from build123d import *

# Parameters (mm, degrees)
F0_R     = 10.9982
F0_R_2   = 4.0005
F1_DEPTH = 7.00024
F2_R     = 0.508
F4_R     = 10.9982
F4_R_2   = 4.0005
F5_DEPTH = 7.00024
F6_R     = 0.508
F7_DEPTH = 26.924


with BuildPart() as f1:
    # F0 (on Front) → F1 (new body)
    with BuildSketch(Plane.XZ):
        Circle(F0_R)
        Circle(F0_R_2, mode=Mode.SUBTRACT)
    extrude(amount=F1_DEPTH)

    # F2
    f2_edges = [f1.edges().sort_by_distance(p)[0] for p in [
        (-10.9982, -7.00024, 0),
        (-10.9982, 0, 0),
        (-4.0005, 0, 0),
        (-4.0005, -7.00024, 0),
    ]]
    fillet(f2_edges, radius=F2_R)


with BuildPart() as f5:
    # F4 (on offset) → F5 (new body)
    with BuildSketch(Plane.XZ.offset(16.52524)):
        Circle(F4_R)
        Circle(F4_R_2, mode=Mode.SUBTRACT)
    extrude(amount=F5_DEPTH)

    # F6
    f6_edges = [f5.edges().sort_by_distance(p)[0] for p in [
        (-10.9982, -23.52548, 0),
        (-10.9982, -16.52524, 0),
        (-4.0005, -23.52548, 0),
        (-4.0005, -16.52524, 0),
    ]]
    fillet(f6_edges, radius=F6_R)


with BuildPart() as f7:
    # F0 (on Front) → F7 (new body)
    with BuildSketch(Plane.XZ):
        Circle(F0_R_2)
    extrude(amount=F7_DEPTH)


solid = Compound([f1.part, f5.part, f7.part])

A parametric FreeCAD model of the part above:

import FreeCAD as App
import Part
import Sketcher
Q = App.Units.Quantity


def edges_at(feature, points):
    """Names of the edges that pass closest to the given points."""
    edges = feature.Shape.Edges
    near = lambda p: min(range(len(edges)), key=lambda i: edges[i].distToShape(Part.Vertex(*p))[0])
    return sorted({f"Edge{near(p) + 1}" for p in points})

doc = App.newDocument("Part")
params = doc.addObject("Spreadsheet::Sheet", "Params")
for row, (alias, value) in enumerate([
    ("sketch1_diameter", "0.866 in"),
    ("sketch1_diameter2", "0.315 in"),
    ("pad1_length", "0.2756 in"),
    ("fillet_radius", "0.02 in"),
    ("sketch2_diameter", "0.866 in"),
    ("sketch2_diameter2", "0.315 in"),
    ("pad2_length", "0.2756 in"),
    ("fillet2_radius", "0.02 in"),
    ("sketch3_diameter", "0.315 in"),
    ("pad3_length", "1.06 in"),
], start=1):
    params.set(f"A{row}", alias)
    params.set(f"B{row}", "=" + value)
    params.setAlias(f"B{row}", alias)

body = doc.addObject("PartDesign::Body", "Body")

sketch1 = body.newObject("Sketcher::SketchObject", "Sketch")
sketch1.AttachmentSupport = (doc.getObject("XZ_Plane"), [""])
sketch1.MapMode = "FlatFace"
sketch1.addGeometry(Part.Circle(App.Vector(0, 0, 0), App.Vector(0, 0, 1), 11), False)
sketch1.addGeometry(Part.Circle(App.Vector(0, 0, 0), App.Vector(0, 0, 1), 4), False)
sketch1.addConstraint(Sketcher.Constraint("Coincident", 0, 3, -1, 1))
sketch1.addConstraint(Sketcher.Constraint("Coincident", 1, 3, -1, 1))
sketch1.addConstraint(Sketcher.Constraint("Diameter", 0, Q("0.866 in")))
sketch1.addConstraint(Sketcher.Constraint("Diameter", 1, Q("0.315 in")))
sketch1.setExpression("Constraints[2]", "Params.sketch1_diameter")
sketch1.setExpression("Constraints[3]", "Params.sketch1_diameter2")
pad1 = body.newObject("PartDesign::Pad", "Pad")
pad1.Profile = sketch1
pad1.setExpression("Length", "Params.pad1_length")
doc.recompute()

fillet = body.newObject("PartDesign::Fillet", "Fillet")
fillet.Base = (pad1, edges_at(pad1, [
    (-10.998, -7, 0),
    (-10.998, 0, 0),
    (-4, 0, 0),
    (-4, -7, 0),
]))
fillet.setExpression("Radius", "Params.fillet_radius")
body2 = doc.addObject("PartDesign::Body", "Body001")

sketch2 = body2.newObject("Sketcher::SketchObject", "Sketch001")
sketch2.AttachmentSupport = (doc.getObject("XZ_Plane001"), [""])
sketch2.MapMode = "FlatFace"
sketch2.AttachmentOffset = App.Placement(App.Vector(0, 0, 0.6506 * 25.4), App.Rotation())
sketch2.addGeometry(Part.Circle(App.Vector(0, 0, 0), App.Vector(0, 0, 1), 11), False)
sketch2.addGeometry(Part.Circle(App.Vector(0, 0, 0), App.Vector(0, 0, 1), 4), False)
sketch2.addConstraint(Sketcher.Constraint("Coincident", 0, 3, -1, 1))
sketch2.addConstraint(Sketcher.Constraint("Coincident", 1, 3, -1, 1))
sketch2.addConstraint(Sketcher.Constraint("Diameter", 0, Q("0.866 in")))
sketch2.addConstraint(Sketcher.Constraint("Diameter", 1, Q("0.315 in")))
sketch2.setExpression("Constraints[2]", "Params.sketch2_diameter")
sketch2.setExpression("Constraints[3]", "Params.sketch2_diameter2")
pad2 = body2.newObject("PartDesign::Pad", "Pad001")
pad2.Profile = sketch2
pad2.setExpression("Length", "Params.pad2_length")
doc.recompute()

fillet2 = body2.newObject("PartDesign::Fillet", "Fillet001")
fillet2.Base = (pad2, edges_at(pad2, [
    (-10.998, -23.525, 0),
    (-10.998, -16.525, 0),
    (-4, -23.525, 0),
    (-4, -16.525, 0),
]))
fillet2.setExpression("Radius", "Params.fillet2_radius")
body3 = doc.addObject("PartDesign::Body", "Body002")

sketch3 = body3.newObject("Sketcher::SketchObject", "Sketch002")
sketch3.AttachmentSupport = (doc.getObject("XZ_Plane002"), [""])
sketch3.MapMode = "FlatFace"
sketch3.addGeometry(Part.Circle(App.Vector(0, 0, 0), App.Vector(0, 0, 1), 4), False)
sketch3.addConstraint(Sketcher.Constraint("Coincident", 0, 3, -1, 1))
sketch3.addConstraint(Sketcher.Constraint("Diameter", 0, Q("0.315 in")))
sketch3.setExpression("Constraints[1]", "Params.sketch3_diameter")
pad3 = body3.newObject("PartDesign::Pad", "Pad002")
pad3.Profile = sketch3
pad3.setExpression("Length", "Params.pad3_length")

doc.recompute()
